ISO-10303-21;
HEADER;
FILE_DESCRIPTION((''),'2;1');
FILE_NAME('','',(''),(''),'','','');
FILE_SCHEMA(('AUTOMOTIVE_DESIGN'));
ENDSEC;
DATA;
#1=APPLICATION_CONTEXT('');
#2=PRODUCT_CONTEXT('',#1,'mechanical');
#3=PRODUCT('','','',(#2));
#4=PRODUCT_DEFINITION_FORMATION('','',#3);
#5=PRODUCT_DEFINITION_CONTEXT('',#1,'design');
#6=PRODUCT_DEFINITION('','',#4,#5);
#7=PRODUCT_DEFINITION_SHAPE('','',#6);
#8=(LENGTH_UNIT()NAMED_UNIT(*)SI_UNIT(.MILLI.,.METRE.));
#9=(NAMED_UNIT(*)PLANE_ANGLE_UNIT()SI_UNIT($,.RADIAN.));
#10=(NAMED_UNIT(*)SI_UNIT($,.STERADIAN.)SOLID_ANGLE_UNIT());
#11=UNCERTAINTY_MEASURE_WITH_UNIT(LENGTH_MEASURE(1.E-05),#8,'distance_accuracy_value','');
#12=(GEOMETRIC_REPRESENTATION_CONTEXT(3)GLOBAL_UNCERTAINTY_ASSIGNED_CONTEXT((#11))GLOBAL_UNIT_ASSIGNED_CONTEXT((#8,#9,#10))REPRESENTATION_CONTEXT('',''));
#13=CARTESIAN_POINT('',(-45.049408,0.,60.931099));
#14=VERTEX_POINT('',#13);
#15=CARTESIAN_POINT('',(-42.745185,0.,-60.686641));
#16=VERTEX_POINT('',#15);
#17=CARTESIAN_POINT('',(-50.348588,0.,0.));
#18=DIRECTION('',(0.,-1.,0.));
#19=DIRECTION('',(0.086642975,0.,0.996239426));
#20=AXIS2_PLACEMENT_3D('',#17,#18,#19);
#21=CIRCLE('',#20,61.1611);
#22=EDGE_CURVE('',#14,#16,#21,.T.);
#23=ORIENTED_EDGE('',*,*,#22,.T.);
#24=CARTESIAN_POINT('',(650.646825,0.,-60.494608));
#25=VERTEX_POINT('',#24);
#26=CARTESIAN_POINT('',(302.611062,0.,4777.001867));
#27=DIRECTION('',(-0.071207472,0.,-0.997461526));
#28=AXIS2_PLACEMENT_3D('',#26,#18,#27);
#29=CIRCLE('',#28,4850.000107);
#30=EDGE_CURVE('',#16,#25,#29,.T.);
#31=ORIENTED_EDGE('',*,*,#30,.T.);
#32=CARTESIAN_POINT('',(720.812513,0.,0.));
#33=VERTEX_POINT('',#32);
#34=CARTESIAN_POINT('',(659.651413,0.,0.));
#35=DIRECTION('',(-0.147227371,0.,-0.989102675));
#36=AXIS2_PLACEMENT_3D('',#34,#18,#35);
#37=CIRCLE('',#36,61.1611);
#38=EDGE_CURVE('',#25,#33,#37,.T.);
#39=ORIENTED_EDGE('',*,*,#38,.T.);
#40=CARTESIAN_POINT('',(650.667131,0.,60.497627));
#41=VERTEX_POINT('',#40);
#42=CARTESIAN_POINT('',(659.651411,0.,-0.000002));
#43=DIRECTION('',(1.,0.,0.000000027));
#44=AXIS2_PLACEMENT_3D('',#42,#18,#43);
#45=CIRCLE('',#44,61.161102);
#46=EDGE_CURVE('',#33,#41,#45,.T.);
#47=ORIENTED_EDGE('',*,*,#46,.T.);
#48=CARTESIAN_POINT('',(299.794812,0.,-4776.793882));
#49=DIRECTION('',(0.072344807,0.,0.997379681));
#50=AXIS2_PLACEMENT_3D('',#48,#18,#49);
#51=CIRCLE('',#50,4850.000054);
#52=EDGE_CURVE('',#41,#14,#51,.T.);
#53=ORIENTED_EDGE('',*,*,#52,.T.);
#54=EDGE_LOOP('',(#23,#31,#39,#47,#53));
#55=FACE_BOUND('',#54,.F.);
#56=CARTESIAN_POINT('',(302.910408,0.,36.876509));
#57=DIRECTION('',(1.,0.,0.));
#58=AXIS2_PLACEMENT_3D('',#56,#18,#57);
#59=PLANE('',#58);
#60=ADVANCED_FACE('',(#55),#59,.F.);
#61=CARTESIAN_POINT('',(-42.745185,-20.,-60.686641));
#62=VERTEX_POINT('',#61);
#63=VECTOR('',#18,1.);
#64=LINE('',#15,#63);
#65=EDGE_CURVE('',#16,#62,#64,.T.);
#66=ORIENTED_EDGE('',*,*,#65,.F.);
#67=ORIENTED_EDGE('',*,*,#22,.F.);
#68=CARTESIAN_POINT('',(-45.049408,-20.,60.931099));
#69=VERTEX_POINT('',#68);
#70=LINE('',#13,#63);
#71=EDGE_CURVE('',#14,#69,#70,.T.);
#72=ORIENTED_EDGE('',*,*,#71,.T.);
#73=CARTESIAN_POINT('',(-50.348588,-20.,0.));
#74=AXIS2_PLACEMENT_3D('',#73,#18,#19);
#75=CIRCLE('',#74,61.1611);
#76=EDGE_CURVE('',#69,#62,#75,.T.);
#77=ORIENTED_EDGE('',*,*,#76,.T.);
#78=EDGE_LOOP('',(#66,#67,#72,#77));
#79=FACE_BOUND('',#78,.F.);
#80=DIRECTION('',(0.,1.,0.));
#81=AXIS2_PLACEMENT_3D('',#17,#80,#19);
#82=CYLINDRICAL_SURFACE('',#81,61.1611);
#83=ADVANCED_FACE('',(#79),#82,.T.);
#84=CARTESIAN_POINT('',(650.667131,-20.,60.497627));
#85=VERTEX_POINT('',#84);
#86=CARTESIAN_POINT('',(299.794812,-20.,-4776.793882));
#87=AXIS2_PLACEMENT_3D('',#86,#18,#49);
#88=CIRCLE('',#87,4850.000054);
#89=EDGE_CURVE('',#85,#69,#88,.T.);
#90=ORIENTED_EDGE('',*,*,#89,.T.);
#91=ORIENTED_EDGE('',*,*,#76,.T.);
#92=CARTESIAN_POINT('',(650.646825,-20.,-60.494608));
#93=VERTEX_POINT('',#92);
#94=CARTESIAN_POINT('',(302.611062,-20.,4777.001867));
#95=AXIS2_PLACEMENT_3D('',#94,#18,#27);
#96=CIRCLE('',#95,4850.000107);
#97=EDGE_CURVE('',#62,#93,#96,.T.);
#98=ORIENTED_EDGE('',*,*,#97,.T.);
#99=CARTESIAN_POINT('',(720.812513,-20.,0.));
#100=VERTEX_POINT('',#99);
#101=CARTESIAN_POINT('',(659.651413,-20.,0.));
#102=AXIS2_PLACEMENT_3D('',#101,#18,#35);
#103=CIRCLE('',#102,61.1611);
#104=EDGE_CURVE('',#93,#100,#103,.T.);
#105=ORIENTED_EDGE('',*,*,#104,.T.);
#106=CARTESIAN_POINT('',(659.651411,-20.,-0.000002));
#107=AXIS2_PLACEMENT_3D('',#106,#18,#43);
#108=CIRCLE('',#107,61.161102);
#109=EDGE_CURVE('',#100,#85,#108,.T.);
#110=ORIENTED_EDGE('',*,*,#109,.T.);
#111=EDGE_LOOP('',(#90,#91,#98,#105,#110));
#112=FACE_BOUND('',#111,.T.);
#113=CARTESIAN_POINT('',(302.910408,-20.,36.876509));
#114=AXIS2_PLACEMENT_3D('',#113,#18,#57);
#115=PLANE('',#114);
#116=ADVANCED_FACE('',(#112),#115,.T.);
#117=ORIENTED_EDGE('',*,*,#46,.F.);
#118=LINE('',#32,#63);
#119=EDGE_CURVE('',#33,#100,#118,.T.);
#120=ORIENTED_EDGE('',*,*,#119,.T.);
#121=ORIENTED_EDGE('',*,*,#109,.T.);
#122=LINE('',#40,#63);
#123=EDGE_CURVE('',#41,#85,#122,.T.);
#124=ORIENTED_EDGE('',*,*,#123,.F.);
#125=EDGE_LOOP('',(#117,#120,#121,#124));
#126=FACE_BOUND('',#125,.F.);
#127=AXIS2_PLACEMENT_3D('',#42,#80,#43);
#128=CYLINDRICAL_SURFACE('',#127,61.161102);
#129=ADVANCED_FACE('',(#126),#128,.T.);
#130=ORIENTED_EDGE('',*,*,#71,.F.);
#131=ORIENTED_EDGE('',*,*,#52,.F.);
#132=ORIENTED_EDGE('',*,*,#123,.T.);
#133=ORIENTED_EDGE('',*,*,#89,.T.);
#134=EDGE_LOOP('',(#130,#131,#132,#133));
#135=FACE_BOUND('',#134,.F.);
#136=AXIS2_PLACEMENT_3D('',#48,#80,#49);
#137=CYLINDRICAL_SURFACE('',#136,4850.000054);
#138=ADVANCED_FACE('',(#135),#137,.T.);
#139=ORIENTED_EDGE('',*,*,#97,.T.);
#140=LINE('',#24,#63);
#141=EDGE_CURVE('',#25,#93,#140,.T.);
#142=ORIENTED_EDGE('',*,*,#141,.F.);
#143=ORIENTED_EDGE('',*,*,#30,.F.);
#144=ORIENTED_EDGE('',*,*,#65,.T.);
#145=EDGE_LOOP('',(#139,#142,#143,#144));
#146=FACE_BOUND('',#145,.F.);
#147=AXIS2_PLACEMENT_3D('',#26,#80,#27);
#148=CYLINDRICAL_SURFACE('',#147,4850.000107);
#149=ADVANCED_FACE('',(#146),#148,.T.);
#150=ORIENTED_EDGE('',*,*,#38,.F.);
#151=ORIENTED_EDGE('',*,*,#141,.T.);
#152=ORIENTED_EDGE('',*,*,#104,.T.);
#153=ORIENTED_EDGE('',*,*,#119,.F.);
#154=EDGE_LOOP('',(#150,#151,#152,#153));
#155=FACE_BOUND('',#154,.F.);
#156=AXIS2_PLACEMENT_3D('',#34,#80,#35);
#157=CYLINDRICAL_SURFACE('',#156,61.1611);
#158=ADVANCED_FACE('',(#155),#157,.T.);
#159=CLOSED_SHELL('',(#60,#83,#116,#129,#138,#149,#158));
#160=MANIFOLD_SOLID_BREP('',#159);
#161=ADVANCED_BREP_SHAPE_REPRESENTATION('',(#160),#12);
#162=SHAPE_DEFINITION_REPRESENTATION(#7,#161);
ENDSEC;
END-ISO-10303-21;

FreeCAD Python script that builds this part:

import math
import FreeCAD as App
import Part
import Sketcher

V = App.Vector

doc = App.newDocument("Part")
params = doc.addObject("Spreadsheet::Sheet", "Params")
for row, (alias, value) in enumerate([
    ("pad1_length", "20 mm"),
], start=1):
    params.set(f"A{row}", alias)
    params.set(f"B{row}", "=" + value)
    params.setAlias(f"B{row}", alias)

body = doc.addObject("PartDesign::Body", "Body")

sketch1 = body.newObject("Sketcher::SketchObject", "Sketch")
sketch1.AttachmentSupport = (doc.getObject("XZ_Plane"), [""])
sketch1.MapMode = "FlatFace"
sketch1.addGeometry(Part.ArcOfCircle(Part.Circle(V(300, -4777, 0), V(0, 0, 1), 4850), math.radians(85.85), math.radians(94.08)), False)
sketch1.addGeometry(Part.ArcOfCircle(Part.Circle(V(-50, 0, 0), V(0, 0, 1), 61), math.radians(85), math.radians(277)), False)
sketch1.addGeometry(Part.ArcOfCircle(Part.Circle(V(303, 4777, 0), V(0, 0, 1), 4850), math.radians(-94.08), math.radians(-85.88)), False)
sketch1.addGeometry(Part.ArcOfCircle(Part.Circle(V(660, 0, 0), V(0, 0, 1), 61), math.radians(-98), math.radians(0)), False)
sketch1.addGeometry(Part.ArcOfCircle(Part.Circle(V(660, 0, 0), V(0, 0, 1), 61), math.radians(0), math.radians(98)), False)
sketch1.addConstraint(Sketcher.Constraint("Coincident", 0, 2, 1, 1))
sketch1.addConstraint(Sketcher.Constraint("Coincident", 1, 2, 2, 1))
sketch1.addConstraint(Sketcher.Constraint("Coincident", 2, 2, 3, 1))
sketch1.addConstraint(Sketcher.Constraint("Tangent", 3, 2, 4, 1))
sketch1.addConstraint(Sketcher.Constraint("Coincident", 4, 2, 0, 1))
sketch1.addConstraint(Sketcher.Constraint("Equal", 1, 3))
sketch1.addConstraint(Sketcher.Constraint("Equal", 3, 4))
sketch1.addConstraint(Sketcher.Constraint("PointOnObject", 1, 3, -1))
sketch1.addConstraint(Sketcher.Constraint("PointOnObject", 3, 3, -1))
sketch1.addConstraint(Sketcher.Constraint("PointOnObject", 3, 2, -1))
sketch1.addConstraint(Sketcher.Constraint("DistanceX", 1, 3, 3, 3, 710.000001))
sketch1.addConstraint(Sketcher.Constraint("Radius", 1, 61.1611))
sketch1.addConstraint(Sketcher.Constraint("Radius", 0, 4850.000054))
sketch1.addConstraint(Sketcher.Constraint("Radius", 2, 4850.000107))
sketch1.addConstraint(Sketcher.Constraint("DistanceX", 1, 3, 0, 3, 350.143399))
sketch1.addConstraint(Sketcher.Constraint("DistanceX", -1, 1, 0, 3, 299.794812))
sketch1.addConstraint(Sketcher.Constraint("DistanceY", 1, 2, -1, 1, 60.686641))
sketch1.addConstraint(Sketcher.Constraint("DistanceX", -1, 1, 4, 2, 650.667131))
sketch1.addConstraint(Sketcher.Constraint("DistanceX", 1, 3, 2, 3, 352.95965))
pad1 = body.newObject("PartDesign::Pad", "Pad")
pad1.Profile = sketch1
pad1.setExpression("Length", "Params.pad1_length")

doc.recompute()
